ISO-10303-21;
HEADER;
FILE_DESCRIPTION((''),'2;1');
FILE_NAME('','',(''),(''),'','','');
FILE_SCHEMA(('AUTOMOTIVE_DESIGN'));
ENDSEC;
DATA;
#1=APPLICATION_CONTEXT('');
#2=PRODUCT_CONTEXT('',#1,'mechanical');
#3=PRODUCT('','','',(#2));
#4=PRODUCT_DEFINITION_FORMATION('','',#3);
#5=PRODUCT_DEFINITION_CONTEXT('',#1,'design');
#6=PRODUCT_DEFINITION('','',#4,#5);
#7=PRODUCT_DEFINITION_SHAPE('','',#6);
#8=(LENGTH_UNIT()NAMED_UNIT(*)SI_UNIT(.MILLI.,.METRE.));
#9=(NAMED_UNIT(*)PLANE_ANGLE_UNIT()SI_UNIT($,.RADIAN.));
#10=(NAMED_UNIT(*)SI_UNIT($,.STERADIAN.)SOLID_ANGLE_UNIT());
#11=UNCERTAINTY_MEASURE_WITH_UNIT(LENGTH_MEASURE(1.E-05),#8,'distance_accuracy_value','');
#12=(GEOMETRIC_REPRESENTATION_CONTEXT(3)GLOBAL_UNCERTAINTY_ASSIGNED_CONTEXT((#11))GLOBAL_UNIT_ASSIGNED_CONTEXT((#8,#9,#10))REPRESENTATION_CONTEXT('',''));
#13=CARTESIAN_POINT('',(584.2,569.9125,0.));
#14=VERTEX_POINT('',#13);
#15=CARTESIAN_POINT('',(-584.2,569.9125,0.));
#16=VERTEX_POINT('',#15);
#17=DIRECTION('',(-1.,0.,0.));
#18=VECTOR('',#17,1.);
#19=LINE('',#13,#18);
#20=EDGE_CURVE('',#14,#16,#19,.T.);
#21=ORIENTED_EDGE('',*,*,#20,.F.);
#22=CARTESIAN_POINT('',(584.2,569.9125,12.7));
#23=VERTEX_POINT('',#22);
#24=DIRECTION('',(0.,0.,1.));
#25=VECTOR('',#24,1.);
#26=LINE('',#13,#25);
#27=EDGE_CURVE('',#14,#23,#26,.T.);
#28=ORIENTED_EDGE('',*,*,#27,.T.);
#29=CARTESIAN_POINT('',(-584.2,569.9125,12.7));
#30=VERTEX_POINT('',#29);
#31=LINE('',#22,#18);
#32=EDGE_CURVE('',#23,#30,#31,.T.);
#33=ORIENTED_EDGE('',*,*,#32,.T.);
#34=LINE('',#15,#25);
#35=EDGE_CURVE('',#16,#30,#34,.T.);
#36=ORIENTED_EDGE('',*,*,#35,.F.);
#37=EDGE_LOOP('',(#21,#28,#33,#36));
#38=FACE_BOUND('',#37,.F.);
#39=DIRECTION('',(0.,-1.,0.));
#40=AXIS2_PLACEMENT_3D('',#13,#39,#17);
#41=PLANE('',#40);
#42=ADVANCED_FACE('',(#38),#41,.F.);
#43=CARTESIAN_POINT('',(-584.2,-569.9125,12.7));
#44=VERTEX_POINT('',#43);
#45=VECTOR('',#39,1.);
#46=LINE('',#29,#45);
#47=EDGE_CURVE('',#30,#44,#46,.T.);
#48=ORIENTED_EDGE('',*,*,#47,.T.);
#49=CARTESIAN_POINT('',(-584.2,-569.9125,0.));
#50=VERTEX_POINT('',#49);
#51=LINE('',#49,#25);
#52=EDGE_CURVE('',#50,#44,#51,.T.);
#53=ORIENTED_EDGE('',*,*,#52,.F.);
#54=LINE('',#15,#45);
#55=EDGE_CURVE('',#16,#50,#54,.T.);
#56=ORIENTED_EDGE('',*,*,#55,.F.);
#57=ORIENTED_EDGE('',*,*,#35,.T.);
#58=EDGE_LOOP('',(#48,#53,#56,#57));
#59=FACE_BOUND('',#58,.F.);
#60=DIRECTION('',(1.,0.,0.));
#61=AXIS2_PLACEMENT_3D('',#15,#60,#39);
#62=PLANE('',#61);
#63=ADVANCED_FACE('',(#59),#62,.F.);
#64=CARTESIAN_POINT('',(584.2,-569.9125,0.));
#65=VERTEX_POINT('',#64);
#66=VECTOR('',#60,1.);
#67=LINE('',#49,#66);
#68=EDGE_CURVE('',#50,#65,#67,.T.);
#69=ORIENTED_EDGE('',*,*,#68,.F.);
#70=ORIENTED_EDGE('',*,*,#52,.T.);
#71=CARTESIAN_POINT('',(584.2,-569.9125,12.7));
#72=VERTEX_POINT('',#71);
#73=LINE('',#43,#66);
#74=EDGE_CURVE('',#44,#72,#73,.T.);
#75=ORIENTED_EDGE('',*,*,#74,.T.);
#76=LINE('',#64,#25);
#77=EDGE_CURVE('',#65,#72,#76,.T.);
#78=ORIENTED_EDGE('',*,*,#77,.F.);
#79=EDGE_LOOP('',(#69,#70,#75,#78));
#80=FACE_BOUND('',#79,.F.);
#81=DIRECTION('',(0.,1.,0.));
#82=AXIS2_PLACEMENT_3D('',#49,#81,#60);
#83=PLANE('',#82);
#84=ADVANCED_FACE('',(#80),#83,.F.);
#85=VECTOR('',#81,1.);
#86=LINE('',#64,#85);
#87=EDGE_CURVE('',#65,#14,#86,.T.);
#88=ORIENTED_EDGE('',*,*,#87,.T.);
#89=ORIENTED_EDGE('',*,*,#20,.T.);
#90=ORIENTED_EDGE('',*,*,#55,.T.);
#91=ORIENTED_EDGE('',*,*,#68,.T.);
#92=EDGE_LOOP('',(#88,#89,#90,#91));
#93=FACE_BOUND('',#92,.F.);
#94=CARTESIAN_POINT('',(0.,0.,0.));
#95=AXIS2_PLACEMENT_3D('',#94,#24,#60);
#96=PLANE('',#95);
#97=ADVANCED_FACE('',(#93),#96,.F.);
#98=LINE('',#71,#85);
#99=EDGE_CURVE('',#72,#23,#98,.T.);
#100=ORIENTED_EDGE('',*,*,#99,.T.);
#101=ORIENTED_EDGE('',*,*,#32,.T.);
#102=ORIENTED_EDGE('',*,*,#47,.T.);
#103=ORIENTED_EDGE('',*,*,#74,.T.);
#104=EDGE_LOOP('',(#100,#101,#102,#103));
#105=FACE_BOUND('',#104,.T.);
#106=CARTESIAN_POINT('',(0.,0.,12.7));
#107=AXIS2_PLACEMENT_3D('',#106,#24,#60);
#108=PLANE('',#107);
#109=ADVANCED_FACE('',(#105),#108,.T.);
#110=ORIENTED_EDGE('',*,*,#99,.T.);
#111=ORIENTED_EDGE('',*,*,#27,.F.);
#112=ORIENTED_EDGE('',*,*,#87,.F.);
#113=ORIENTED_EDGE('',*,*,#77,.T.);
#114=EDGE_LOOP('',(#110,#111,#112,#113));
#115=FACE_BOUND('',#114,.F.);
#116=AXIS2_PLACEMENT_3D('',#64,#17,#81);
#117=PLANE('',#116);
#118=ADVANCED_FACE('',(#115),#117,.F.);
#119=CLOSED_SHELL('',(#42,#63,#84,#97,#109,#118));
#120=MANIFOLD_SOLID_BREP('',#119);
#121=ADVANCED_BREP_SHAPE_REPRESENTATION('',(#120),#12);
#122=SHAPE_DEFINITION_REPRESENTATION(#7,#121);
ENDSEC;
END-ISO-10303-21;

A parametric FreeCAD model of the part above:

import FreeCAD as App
import Part
import Sketcher
from FreeCAD import Vector
Q = App.Units.Quantity

doc = App.newDocument("Part")
body = doc.addObject("PartDesign::Body", "Body")

# Sketch on XY plane
sketch1 = body.newObject("Sketcher::SketchObject", "Sketch")
sketch1.AttachmentSupport = (doc.getObject("XY_Plane"), [""])
sketch1.MapMode = "FlatFace"
sketch1.addGeometry(Part.LineSegment(Vector(-584, 570, 0), Vector(-584, -570, 0)), False)
sketch1.addGeometry(Part.LineSegment(Vector(-584, -570, 0), Vector(584, -570, 0)), False)
sketch1.addGeometry(Part.LineSegment(Vector(584, -570, 0), Vector(584, 570, 0)), False)
sketch1.addGeometry(Part.LineSegment(Vector(584, 570, 0), Vector(-584, 570, 0)), False)
sketch1.addConstraint(Sketcher.Constraint("Coincident", 0, 2, 1, 1))
sketch1.addConstraint(Sketcher.Constraint("Coincident", 1, 2, 2, 1))
sketch1.addConstraint(Sketcher.Constraint("Coincident", 2, 2, 3, 1))
sketch1.addConstraint(Sketcher.Constraint("Coincident", 3, 2, 0, 1))
sketch1.addConstraint(Sketcher.Constraint("Vertical", 0))
sketch1.addConstraint(Sketcher.Constraint("Horizontal", 1))
sketch1.addConstraint(Sketcher.Constraint("Vertical", 2))
sketch1.addConstraint(Sketcher.Constraint("Horizontal", 3))
sketch1.addConstraint(Sketcher.Constraint("Symmetric", 0, 2, 2, 2, -1, 1))
sketch1.addConstraint(Sketcher.Constraint("DistanceX", 1, 1, 1, 2, Q("46 in")))
sketch1.addConstraint(Sketcher.Constraint("DistanceY", 0, 2, 0, 1, Q("44.875 in")))
pad1 = body.newObject("PartDesign::Pad", "Pad")
pad1.Profile = sketch1
pad1.Length = Q("0.5 in")

doc.recompute()
